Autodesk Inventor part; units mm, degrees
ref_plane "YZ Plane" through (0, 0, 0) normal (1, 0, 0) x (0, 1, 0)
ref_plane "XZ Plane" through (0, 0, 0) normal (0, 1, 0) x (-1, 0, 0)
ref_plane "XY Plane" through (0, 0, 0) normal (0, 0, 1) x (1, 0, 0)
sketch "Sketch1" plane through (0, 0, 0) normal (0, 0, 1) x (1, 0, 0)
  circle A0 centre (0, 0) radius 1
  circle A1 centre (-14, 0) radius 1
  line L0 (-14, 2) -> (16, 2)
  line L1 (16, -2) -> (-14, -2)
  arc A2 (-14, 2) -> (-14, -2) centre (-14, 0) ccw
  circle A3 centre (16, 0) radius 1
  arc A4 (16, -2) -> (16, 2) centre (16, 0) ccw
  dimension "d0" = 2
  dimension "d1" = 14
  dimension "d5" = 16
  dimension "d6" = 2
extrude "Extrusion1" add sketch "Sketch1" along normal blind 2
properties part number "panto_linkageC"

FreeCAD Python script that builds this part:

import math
import FreeCAD as App
import Part
import Sketcher
Q = App.Units.Quantity

doc = App.newDocument("Part")
body = doc.addObject("PartDesign::Body", "Body")

sketch1 = body.newObject("Sketcher::SketchObject", "Sketch")
sketch1.AttachmentSupport = (doc.getObject("XY_Plane"), [""])
sketch1.MapMode = "FlatFace"
sketch1.addGeometry([
    Part.LineSegment(App.Vector(16, 2, 0), App.Vector(-14, 2, 0)),
    Part.ArcOfCircle(Part.Circle(App.Vector(-14, 0, 0), App.Vector(0, 0, 1), 2), math.radians(90), math.radians(270)),
    Part.LineSegment(App.Vector(-14, -2, 0), App.Vector(16, -2, 0)),
    Part.ArcOfCircle(Part.Circle(App.Vector(16, 0, 0), App.Vector(0, 0, 1), 2), math.radians(-90), math.radians(90)),
    Part.Circle(App.Vector(-14, 0, 0), App.Vector(0, 0, 1), 1),
    Part.Circle(App.Vector(0, 0, 0), App.Vector(0, 0, 1), 1),
    Part.Circle(App.Vector(16, 0, 0), App.Vector(0, 0, 1), 1),
], False)
sketch1.addConstraint([
    Sketcher.Constraint("Tangent", 0, 2, 1, 1),
    Sketcher.Constraint("Tangent", 1, 2, 2, 1),
    Sketcher.Constraint("Tangent", 2, 2, 3, 1),
    Sketcher.Constraint("Tangent", 3, 2, 0, 1),
    Sketcher.Constraint("Horizontal", 0),
    Sketcher.Constraint("Horizontal", 2),
    Sketcher.Constraint("Coincident", 5, 3, -1, 1),
    Sketcher.Constraint("Coincident", 4, 3, 1, 3),
    Sketcher.Constraint("Coincident", 6, 3, 3, 3),
    Sketcher.Constraint("Equal", 4, 5),
    Sketcher.Constraint("Equal", 5, 6),
    Sketcher.Constraint("PointOnObject", 1, 3, -1),
    Sketcher.Constraint("Diameter", 4, Q("2 mm")),
    Sketcher.Constraint("Radius", 1, Q("2 mm")),
    Sketcher.Constraint("DistanceX", 1, 3, -1, 1, Q("14 mm")),
    Sketcher.Constraint("DistanceX", -1, 1, 3, 3, Q("16 mm")),
])
pad1 = body.newObject("PartDesign::Pad", "Pad")
pad1.Profile = sketch1
pad1.Length = 2

doc.recompute()
